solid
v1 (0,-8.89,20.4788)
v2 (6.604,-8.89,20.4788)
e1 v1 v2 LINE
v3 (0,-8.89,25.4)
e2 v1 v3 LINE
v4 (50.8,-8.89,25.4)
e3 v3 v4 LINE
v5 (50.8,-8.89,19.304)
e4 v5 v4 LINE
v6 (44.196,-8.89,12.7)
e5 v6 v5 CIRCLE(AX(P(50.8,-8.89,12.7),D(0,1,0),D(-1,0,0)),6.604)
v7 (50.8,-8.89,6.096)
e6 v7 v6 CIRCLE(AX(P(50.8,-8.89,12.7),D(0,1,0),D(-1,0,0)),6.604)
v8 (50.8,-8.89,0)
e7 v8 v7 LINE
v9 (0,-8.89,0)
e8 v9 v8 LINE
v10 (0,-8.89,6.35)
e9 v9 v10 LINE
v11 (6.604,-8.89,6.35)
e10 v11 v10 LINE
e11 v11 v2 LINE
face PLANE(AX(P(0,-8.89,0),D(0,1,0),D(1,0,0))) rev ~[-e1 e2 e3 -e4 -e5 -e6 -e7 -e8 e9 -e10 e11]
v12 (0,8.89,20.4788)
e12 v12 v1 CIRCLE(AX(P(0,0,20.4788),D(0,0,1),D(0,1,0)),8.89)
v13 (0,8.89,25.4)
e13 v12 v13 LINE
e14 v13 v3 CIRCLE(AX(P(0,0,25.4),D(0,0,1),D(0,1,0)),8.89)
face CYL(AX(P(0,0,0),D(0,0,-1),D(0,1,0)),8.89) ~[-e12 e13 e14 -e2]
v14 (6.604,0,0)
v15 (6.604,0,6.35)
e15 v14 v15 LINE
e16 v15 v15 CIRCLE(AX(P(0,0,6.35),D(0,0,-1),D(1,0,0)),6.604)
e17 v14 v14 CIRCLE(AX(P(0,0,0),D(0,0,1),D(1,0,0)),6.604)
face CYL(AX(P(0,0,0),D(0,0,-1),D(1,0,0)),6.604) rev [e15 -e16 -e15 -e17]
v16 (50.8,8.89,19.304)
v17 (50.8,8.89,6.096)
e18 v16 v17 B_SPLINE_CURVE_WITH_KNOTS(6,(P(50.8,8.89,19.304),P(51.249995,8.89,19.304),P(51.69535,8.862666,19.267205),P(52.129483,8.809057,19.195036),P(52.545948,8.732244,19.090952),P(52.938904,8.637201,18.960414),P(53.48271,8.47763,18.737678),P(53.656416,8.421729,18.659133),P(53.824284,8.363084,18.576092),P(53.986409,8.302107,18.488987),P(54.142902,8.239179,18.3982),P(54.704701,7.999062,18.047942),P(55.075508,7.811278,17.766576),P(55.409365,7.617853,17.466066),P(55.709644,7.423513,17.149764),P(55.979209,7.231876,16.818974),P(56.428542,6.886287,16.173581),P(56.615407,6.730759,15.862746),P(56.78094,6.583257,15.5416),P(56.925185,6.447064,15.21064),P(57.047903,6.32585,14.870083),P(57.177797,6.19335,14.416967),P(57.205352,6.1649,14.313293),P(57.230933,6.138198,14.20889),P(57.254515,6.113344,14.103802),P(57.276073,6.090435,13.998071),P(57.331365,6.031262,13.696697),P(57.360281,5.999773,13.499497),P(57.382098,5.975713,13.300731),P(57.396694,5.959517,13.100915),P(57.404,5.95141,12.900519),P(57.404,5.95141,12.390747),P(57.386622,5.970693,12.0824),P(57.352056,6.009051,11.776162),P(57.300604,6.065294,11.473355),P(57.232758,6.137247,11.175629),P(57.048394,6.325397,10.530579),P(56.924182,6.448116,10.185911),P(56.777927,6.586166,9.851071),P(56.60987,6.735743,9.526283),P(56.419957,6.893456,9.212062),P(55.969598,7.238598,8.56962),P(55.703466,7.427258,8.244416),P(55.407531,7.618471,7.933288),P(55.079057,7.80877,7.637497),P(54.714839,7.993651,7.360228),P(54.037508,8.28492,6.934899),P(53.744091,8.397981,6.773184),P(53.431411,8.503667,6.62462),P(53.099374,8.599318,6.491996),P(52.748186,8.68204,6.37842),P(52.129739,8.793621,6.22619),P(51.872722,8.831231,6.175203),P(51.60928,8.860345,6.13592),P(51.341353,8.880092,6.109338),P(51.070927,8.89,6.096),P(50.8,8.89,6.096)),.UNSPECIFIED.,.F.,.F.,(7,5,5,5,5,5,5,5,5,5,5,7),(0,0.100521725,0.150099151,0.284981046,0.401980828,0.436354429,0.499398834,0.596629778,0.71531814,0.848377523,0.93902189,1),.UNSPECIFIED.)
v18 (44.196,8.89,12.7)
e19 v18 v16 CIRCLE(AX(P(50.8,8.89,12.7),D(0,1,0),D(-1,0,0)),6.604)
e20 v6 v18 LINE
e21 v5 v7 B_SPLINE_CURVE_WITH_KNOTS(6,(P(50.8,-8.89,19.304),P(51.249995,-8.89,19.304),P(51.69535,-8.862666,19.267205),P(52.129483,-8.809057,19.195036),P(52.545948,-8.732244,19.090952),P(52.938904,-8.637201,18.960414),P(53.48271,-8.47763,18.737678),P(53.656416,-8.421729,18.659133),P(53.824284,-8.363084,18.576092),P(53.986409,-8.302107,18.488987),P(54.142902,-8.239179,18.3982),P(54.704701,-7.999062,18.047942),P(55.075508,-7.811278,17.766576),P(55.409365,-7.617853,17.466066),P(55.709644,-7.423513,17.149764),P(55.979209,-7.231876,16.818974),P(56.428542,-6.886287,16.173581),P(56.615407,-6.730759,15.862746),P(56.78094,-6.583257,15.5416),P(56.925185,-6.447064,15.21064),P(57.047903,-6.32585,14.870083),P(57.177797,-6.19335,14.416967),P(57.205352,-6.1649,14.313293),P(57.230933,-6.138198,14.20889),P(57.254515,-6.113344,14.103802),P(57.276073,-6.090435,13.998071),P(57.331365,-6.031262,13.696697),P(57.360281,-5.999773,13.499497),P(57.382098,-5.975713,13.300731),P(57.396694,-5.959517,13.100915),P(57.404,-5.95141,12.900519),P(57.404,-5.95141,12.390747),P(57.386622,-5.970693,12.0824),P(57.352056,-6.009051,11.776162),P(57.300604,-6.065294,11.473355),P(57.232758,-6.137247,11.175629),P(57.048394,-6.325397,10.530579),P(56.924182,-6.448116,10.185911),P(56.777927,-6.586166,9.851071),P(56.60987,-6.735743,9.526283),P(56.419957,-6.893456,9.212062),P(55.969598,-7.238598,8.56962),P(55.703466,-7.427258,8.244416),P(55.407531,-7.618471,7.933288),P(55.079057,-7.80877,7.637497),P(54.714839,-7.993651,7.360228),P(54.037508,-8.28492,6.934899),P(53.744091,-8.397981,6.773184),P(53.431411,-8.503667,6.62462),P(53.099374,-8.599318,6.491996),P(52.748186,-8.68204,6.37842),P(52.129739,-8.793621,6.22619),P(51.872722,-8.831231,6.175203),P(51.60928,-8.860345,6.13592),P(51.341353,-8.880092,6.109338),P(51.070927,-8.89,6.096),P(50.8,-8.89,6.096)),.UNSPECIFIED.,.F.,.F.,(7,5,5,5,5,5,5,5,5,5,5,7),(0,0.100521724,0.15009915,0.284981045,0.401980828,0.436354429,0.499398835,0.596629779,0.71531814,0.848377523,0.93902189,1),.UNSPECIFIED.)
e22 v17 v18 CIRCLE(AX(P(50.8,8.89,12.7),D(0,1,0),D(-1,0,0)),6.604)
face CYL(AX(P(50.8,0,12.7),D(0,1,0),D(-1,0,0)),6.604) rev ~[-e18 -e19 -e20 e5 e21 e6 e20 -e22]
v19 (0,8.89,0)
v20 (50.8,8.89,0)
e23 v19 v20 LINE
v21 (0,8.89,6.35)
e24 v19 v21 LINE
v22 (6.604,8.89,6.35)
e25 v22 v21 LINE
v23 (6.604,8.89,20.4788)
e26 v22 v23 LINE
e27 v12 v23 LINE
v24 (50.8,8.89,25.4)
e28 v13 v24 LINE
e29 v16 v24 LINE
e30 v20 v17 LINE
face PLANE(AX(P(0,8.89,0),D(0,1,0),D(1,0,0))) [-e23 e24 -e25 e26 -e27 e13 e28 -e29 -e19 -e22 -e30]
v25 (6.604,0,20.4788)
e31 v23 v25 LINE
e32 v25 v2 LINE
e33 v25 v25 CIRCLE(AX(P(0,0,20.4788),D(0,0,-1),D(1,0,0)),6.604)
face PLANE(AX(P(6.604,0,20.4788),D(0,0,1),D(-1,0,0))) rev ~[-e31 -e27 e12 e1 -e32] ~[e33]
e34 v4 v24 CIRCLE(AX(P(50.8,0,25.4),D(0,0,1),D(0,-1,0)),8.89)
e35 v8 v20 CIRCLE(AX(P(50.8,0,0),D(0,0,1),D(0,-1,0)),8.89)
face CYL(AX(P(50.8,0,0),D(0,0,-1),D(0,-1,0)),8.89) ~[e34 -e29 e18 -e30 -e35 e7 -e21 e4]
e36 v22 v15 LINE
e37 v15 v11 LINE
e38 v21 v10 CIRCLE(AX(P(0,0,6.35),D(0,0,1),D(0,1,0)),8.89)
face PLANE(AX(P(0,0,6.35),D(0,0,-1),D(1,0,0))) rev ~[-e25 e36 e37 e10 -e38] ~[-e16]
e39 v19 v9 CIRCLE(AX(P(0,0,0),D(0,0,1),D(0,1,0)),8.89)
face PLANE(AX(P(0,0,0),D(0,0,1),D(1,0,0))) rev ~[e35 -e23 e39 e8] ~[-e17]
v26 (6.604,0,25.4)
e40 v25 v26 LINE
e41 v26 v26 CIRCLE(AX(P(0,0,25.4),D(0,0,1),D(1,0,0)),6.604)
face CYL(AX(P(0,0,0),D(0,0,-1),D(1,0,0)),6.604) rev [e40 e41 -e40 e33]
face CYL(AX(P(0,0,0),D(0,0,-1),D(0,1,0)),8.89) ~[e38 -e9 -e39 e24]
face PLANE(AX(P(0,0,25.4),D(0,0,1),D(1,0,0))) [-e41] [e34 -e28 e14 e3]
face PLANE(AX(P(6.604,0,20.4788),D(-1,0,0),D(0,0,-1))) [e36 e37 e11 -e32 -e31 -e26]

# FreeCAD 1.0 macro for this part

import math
import FreeCAD as App
import Part
import Sketcher
from FreeCAD import Vector
Q = App.Units.Quantity

doc = App.newDocument("Part")
body = doc.addObject("PartDesign::Body", "Body")

sketch1 = body.newObject("Sketcher::SketchObject", "Sketch")
sketch1.AttachmentSupport = (doc.getObject("XY_Plane"), [""])
sketch1.MapMode = "FlatFace"
sketch1.addGeometry(Part.LineSegment(Vector(51, 9, 0), Vector(0, 9, 0)), False)
sketch1.addGeometry(Part.ArcOfCircle(Part.Circle(Vector(0, 0, 0), Vector(0, 0, 1), 9), math.radians(90), math.radians(270)), False)
sketch1.addGeometry(Part.LineSegment(Vector(0, -9, 0), Vector(51, -9, 0)), False)
sketch1.addGeometry(Part.ArcOfCircle(Part.Circle(Vector(51, 0, 0), Vector(0, 0, 1), 9), math.radians(-90), math.radians(90)), False)
sketch1.addGeometry(Part.Circle(Vector(0, 0, 0), Vector(0, 0, 1), 7), False)
sketch1.addConstraint(Sketcher.Constraint("Tangent", 0, 2, 1, 1))
sketch1.addConstraint(Sketcher.Constraint("Tangent", 1, 2, 2, 1))
sketch1.addConstraint(Sketcher.Constraint("Tangent", 2, 2, 3, 1))
sketch1.addConstraint(Sketcher.Constraint("Tangent", 3, 2, 0, 1))
sketch1.addConstraint(Sketcher.Constraint("Horizontal", 0))
sketch1.addConstraint(Sketcher.Constraint("Horizontal", 2))
sketch1.addConstraint(Sketcher.Constraint("Coincident", 1, 3, -1, 1))
sketch1.addConstraint(Sketcher.Constraint("Coincident", 4, 3, -1, 1))
sketch1.addConstraint(Sketcher.Constraint("Diameter", 4, Q("0.52 in")))
sketch1.addConstraint(Sketcher.Constraint("DistanceX", 0, 2, 0, 1, Q("2 in")))
sketch1.addConstraint(Sketcher.Constraint("Radius", 1, Q("0.35 in")))
pad1 = body.newObject("PartDesign::Pad", "Pad")
pad1.Profile = sketch1
pad1.Length = Q("1 in")

sketch2 = body.newObject("Sketcher::SketchObject", "Sketch001")
sketch2.AttachmentSupport = (doc.getObject("XZ_Plane"), [""])
sketch2.MapMode = "FlatFace"
sketch2.addGeometry(Part.LineSegment(Vector(7, 6, 0), Vector(-9, 6, 0)), False)
sketch2.addGeometry(Part.LineSegment(Vector(-9, 6, 0), Vector(-9, 20, 0)), False)
sketch2.addGeometry(Part.LineSegment(Vector(-9, 20, 0), Vector(7, 20, 0)), False)
sketch2.addGeometry(Part.LineSegment(Vector(7, 20, 0), Vector(7, 6, 0)), False)
sketch2.addConstraint(Sketcher.Constraint("Coincident", 0, 2, 1, 1))
sketch2.addConstraint(Sketcher.Constraint("Coincident", 1, 2, 2, 1))
sketch2.addConstraint(Sketcher.Constraint("Coincident", 2, 2, 3, 1))
sketch2.addConstraint(Sketcher.Constraint("Coincident", 3, 2, 0, 1))
sketch2.addConstraint(Sketcher.Constraint("Horizontal", 0))
sketch2.addConstraint(Sketcher.Constraint("Vertical", 1))
sketch2.addConstraint(Sketcher.Constraint("Horizontal", 2))
sketch2.addConstraint(Sketcher.Constraint("Vertical", 3))
sketch2.addConstraint(Sketcher.Constraint("DistanceX", 0, 2, 0, 1, Q("0.61 in")))
sketch2.addConstraint(Sketcher.Constraint("DistanceX", 0, 2, -1, 1, Q("0.35 in")))
sketch2.addConstraint(Sketcher.Constraint("DistanceY", -1, 1, 0, 2, Q("0.25 in")))
sketch2.addConstraint(Sketcher.Constraint("DistanceY", 1, 1, 1, 2, 14.1288))
pocket1 = body.newObject("PartDesign::Pocket", "Pocket")
pocket1.Profile = sketch2
pocket1.Length = Q("1 in")
pocket1.Midplane = True

sketch3 = body.newObject("Sketcher::SketchObject", "Sketch002")
sketch3.AttachmentSupport = (doc.getObject("XZ_Plane"), [""])
sketch3.MapMode = "FlatFace"
sketch3.addGeometry(Part.Circle(Vector(51, 13, 0), Vector(0, 0, 1), 7), False)
sketch3.addConstraint(Sketcher.Constraint("Diameter", 0, Q("0.52 in")))
sketch3.addConstraint(Sketcher.Constraint("DistanceX", -1, 1, 0, 3, Q("2 in")))
sketch3.addConstraint(Sketcher.Constraint("DistanceY", -1, 1, 0, 3, Q("0.5 in")))
pocket2 = body.newObject("PartDesign::Pocket", "Pocket001")
pocket2.Profile = sketch3
pocket2.Length = Q("1 in")
pocket2.Midplane = True

doc.recompute()
